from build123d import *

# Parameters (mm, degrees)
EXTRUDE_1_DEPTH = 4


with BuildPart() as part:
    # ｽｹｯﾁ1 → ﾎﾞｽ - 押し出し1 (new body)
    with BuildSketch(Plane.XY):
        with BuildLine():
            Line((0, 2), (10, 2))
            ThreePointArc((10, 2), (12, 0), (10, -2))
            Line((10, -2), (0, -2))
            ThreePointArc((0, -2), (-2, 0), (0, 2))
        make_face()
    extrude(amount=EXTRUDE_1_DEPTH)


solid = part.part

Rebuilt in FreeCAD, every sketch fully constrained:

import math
import FreeCAD as App
import Part
import Sketcher
from FreeCAD import Vector
Q = App.Units.Quantity

doc = App.newDocument("Part")
body = doc.addObject("PartDesign::Body", "Body")

# Sketch on XY plane
sketch1 = body.newObject("Sketcher::SketchObject", "Sketch")
sketch1.AttachmentSupport = (doc.getObject("XY_Plane"), [""])
sketch1.MapMode = "FlatFace"
sketch1.addGeometry(Part.LineSegment(Vector(10, 2, 0), Vector(0, 2, 0)), False)
sketch1.addGeometry(Part.ArcOfCircle(Part.Circle(Vector(0, 0, 0), Vector(0, 0, 1), 2), math.radians(90), math.radians(270)), False)
sketch1.addGeometry(Part.LineSegment(Vector(0, -2, 0), Vector(10, -2, 0)), False)
sketch1.addGeometry(Part.ArcOfCircle(Part.Circle(Vector(10, 0, 0), Vector(0, 0, 1), 2), math.radians(-90), math.radians(90)), False)
sketch1.addConstraint(Sketcher.Constraint("Tangent", 0, 2, 1, 1))
sketch1.addConstraint(Sketcher.Constraint("Tangent", 1, 2, 2, 1))
sketch1.addConstraint(Sketcher.Constraint("Tangent", 2, 2, 3, 1))
sketch1.addConstraint(Sketcher.Constraint("Tangent", 3, 2, 0, 1))
sketch1.addConstraint(Sketcher.Constraint("Horizontal", 0))
sketch1.addConstraint(Sketcher.Constraint("Horizontal", 2))
sketch1.addConstraint(Sketcher.Constraint("Coincident", 1, 3, -1, 1))
sketch1.addConstraint(Sketcher.Constraint("Radius", 1, Q("2 mm")))
sketch1.addConstraint(Sketcher.Constraint("DistanceX", 0, 2, 0, 1, Q("10 mm")))
pad1 = body.newObject("PartDesign::Pad", "Pad")
pad1.Profile = sketch1
pad1.Length = 4

doc.recompute()
